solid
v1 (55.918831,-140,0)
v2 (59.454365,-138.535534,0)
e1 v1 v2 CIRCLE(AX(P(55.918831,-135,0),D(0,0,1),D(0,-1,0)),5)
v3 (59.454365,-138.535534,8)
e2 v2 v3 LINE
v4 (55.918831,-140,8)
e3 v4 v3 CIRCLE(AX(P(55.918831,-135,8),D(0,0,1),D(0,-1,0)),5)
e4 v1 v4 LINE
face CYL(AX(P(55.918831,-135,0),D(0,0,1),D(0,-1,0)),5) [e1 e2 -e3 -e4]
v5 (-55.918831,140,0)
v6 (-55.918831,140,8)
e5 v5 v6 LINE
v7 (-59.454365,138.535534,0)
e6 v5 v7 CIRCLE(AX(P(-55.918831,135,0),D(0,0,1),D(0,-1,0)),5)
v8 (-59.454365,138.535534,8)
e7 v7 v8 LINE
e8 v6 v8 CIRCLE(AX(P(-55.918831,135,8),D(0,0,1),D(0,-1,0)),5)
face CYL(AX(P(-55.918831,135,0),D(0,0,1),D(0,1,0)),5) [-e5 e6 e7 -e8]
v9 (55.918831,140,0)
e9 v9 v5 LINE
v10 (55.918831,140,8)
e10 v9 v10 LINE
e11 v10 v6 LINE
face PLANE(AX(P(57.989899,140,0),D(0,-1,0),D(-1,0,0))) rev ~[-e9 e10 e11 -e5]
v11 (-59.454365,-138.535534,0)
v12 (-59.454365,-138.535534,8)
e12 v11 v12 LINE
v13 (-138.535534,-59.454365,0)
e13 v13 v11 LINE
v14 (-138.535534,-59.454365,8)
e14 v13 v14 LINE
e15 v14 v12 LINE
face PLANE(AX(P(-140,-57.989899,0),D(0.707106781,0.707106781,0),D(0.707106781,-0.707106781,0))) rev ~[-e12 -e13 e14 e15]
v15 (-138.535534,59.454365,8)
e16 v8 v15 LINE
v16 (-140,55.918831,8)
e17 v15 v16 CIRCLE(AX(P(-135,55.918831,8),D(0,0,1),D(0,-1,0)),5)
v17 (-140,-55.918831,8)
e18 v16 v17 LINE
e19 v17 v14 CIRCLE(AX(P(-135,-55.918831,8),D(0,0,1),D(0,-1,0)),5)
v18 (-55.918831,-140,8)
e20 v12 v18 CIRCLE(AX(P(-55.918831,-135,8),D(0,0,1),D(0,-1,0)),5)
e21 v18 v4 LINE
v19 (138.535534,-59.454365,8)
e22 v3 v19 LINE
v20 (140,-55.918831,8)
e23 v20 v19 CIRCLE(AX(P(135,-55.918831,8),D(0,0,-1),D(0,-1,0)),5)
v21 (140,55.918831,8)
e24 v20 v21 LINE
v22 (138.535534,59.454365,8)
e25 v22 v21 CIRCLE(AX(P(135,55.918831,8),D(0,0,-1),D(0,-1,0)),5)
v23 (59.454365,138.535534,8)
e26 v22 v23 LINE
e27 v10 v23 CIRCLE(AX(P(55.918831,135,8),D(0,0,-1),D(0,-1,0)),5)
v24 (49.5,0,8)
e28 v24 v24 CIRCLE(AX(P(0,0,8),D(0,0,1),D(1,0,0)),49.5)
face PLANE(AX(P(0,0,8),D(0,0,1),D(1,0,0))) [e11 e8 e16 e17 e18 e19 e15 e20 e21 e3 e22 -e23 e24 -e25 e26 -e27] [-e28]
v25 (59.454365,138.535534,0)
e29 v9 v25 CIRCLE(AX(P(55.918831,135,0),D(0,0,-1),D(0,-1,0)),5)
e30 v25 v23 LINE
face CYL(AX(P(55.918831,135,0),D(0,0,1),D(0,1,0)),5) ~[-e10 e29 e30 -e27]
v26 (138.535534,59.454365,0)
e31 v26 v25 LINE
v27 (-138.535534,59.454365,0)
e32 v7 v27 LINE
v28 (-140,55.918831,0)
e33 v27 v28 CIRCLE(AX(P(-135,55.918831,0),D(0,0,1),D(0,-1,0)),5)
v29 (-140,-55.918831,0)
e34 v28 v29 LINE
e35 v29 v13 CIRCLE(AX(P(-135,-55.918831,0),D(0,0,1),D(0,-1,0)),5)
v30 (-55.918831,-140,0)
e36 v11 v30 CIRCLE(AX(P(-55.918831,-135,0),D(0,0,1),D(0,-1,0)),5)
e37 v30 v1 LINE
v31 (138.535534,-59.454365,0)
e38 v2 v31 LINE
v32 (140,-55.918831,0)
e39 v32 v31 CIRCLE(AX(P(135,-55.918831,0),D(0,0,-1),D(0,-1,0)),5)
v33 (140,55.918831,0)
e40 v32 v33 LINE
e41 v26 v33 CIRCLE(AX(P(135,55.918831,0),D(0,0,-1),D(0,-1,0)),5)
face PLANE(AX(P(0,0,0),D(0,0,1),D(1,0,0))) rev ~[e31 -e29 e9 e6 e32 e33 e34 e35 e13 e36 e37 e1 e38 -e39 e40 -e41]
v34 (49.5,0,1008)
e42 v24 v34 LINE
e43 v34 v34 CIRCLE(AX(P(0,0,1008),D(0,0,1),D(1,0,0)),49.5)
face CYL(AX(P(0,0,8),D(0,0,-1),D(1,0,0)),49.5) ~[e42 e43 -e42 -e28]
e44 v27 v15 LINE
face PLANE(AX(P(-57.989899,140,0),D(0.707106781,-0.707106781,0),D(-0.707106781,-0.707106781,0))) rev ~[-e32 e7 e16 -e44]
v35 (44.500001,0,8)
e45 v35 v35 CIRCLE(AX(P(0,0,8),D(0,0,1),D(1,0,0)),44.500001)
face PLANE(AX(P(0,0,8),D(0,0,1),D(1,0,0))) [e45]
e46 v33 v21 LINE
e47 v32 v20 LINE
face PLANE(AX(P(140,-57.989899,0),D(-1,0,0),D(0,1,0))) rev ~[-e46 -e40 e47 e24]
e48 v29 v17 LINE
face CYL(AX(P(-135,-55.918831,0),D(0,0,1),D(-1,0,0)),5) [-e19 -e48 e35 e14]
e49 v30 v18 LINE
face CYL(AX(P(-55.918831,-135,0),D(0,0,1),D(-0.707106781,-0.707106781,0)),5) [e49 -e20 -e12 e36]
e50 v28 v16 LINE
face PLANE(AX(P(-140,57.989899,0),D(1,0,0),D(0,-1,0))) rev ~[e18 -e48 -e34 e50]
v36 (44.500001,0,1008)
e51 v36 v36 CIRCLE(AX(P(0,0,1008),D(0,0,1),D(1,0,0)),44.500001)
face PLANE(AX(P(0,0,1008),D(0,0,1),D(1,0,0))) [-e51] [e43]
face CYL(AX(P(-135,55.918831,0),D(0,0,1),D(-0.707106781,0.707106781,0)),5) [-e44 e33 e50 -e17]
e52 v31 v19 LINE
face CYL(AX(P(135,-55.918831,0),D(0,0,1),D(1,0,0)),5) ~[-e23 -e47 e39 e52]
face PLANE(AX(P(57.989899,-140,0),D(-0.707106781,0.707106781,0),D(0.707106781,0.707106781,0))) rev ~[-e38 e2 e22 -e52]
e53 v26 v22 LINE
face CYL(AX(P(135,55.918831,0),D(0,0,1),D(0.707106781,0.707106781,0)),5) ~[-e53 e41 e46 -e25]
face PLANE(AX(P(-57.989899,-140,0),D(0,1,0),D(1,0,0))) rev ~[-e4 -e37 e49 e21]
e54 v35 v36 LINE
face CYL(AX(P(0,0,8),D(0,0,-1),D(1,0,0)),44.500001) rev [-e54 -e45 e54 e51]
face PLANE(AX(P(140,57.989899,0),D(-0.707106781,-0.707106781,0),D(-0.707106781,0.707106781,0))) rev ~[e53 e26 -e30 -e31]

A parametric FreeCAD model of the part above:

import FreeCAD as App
import Part
import Sketcher

V = App.Vector


def edges_at(feature, points):
    """Names of the edges that pass closest to the given points."""
    edges = feature.Shape.Edges
    near = lambda p: min(range(len(edges)), key=lambda i: edges[i].distToShape(Part.Vertex(*p))[0])
    return sorted({f"Edge{near(p) + 1}" for p in points})


def add_polygon(sketch, points):
    """Adds a closed chain of lines whose ends are joined by coincident constraints."""
    first, n = sketch.GeometryCount, len(points)
    for a, b in zip(points, points[1:] + points[:1]):
        sketch.addGeometry(Part.LineSegment(App.Vector(*a, 0), App.Vector(*b, 0)), False)
    for i in range(n):
        sketch.addConstraint(Sketcher.Constraint("Coincident", first + i, 2, first + (i + 1) % n, 1))

doc = App.newDocument("Part")
body = doc.addObject("PartDesign::Body", "Body")

# Sketch on XY plane
sketch1 = body.newObject("Sketcher::SketchObject", "Sketch")
sketch1.AttachmentSupport = (doc.getObject("XY_Plane"), [""])
sketch1.MapMode = "FlatFace"
add_polygon(sketch1, [(58, 140), (-58, 140), (-140, 58), (-140, -58), (-58, -140), (58, -140), (140, -58), (140, 58)])  # lines 0-7
sketch1.addConstraint([
    Sketcher.Constraint("Horizontal", 0),
    Sketcher.Constraint("Vertical", 2),
    Sketcher.Constraint("Horizontal", 4),
    Sketcher.Constraint("Vertical", 6),
    Sketcher.Constraint("Symmetric", 0, 2, 4, 2, -1, 1),
    Sketcher.Constraint("Symmetric", 1, 2, 5, 2, -1, 1),
    Sketcher.Constraint("Perpendicular", 1, 3),
    Sketcher.Constraint("Perpendicular", 5, 7),
    Sketcher.Constraint("Horizontal", 2, 2, 5, 2),
    Sketcher.Constraint("Horizontal", 1, 2, 6, 2),
    Sketcher.Constraint("Vertical", 0, 2, 3, 2),
    Sketcher.Constraint("Equal", 4, 2),
    Sketcher.Constraint("DistanceY", -1, 1, 0, 2, 140.0),
    Sketcher.Constraint("DistanceX", 0, 2, 0, 1, 115.979798),
])
pad1 = body.newObject("PartDesign::Pad", "Pad")
pad1.Profile = sketch1
pad1.Length = 8

# Sketch on XY plane
sketch2 = body.newObject("Sketcher::SketchObject", "Sketch001")
sketch2.AttachmentSupport = (doc.getObject("XY_Plane"), [""])
sketch2.MapMode = "FlatFace"
sketch2.AttachmentOffset = App.Placement(V(0, 0, 8), App.Rotation())
sketch2.addGeometry([
    Part.Circle(V(0, 0, 0), V(0, 0, 1), 50),
    Part.Circle(V(0, 0, 0), V(0, 0, 1), 45),
], False)
sketch2.addConstraint([
    Sketcher.Constraint("Coincident", 0, 3, -1, 1),
    Sketcher.Constraint("Coincident", 1, 3, -1, 1),
    Sketcher.Constraint("Diameter", 0, 99.0),
    Sketcher.Constraint("Diameter", 1, 89.000002),
])
pad2 = body.newObject("PartDesign::Pad", "Pad001")
pad2.Profile = sketch2
pad2.Length = 1000
doc.recompute()

fillet = body.newObject("PartDesign::Fillet", "Fillet")
fillet.Base = (pad2, edges_at(pad2, [
    (57.99, 140, 4),
    (-57.99, 140, 4),
    (-140, 57.99, 4),
    (-140, -57.99, 4),
    (-57.99, -140, 4),
    (57.99, -140, 4),
    (140, -57.99, 4),
    (140, 57.99, 4),
]))
fillet.Radius = 5

doc.recompute()
